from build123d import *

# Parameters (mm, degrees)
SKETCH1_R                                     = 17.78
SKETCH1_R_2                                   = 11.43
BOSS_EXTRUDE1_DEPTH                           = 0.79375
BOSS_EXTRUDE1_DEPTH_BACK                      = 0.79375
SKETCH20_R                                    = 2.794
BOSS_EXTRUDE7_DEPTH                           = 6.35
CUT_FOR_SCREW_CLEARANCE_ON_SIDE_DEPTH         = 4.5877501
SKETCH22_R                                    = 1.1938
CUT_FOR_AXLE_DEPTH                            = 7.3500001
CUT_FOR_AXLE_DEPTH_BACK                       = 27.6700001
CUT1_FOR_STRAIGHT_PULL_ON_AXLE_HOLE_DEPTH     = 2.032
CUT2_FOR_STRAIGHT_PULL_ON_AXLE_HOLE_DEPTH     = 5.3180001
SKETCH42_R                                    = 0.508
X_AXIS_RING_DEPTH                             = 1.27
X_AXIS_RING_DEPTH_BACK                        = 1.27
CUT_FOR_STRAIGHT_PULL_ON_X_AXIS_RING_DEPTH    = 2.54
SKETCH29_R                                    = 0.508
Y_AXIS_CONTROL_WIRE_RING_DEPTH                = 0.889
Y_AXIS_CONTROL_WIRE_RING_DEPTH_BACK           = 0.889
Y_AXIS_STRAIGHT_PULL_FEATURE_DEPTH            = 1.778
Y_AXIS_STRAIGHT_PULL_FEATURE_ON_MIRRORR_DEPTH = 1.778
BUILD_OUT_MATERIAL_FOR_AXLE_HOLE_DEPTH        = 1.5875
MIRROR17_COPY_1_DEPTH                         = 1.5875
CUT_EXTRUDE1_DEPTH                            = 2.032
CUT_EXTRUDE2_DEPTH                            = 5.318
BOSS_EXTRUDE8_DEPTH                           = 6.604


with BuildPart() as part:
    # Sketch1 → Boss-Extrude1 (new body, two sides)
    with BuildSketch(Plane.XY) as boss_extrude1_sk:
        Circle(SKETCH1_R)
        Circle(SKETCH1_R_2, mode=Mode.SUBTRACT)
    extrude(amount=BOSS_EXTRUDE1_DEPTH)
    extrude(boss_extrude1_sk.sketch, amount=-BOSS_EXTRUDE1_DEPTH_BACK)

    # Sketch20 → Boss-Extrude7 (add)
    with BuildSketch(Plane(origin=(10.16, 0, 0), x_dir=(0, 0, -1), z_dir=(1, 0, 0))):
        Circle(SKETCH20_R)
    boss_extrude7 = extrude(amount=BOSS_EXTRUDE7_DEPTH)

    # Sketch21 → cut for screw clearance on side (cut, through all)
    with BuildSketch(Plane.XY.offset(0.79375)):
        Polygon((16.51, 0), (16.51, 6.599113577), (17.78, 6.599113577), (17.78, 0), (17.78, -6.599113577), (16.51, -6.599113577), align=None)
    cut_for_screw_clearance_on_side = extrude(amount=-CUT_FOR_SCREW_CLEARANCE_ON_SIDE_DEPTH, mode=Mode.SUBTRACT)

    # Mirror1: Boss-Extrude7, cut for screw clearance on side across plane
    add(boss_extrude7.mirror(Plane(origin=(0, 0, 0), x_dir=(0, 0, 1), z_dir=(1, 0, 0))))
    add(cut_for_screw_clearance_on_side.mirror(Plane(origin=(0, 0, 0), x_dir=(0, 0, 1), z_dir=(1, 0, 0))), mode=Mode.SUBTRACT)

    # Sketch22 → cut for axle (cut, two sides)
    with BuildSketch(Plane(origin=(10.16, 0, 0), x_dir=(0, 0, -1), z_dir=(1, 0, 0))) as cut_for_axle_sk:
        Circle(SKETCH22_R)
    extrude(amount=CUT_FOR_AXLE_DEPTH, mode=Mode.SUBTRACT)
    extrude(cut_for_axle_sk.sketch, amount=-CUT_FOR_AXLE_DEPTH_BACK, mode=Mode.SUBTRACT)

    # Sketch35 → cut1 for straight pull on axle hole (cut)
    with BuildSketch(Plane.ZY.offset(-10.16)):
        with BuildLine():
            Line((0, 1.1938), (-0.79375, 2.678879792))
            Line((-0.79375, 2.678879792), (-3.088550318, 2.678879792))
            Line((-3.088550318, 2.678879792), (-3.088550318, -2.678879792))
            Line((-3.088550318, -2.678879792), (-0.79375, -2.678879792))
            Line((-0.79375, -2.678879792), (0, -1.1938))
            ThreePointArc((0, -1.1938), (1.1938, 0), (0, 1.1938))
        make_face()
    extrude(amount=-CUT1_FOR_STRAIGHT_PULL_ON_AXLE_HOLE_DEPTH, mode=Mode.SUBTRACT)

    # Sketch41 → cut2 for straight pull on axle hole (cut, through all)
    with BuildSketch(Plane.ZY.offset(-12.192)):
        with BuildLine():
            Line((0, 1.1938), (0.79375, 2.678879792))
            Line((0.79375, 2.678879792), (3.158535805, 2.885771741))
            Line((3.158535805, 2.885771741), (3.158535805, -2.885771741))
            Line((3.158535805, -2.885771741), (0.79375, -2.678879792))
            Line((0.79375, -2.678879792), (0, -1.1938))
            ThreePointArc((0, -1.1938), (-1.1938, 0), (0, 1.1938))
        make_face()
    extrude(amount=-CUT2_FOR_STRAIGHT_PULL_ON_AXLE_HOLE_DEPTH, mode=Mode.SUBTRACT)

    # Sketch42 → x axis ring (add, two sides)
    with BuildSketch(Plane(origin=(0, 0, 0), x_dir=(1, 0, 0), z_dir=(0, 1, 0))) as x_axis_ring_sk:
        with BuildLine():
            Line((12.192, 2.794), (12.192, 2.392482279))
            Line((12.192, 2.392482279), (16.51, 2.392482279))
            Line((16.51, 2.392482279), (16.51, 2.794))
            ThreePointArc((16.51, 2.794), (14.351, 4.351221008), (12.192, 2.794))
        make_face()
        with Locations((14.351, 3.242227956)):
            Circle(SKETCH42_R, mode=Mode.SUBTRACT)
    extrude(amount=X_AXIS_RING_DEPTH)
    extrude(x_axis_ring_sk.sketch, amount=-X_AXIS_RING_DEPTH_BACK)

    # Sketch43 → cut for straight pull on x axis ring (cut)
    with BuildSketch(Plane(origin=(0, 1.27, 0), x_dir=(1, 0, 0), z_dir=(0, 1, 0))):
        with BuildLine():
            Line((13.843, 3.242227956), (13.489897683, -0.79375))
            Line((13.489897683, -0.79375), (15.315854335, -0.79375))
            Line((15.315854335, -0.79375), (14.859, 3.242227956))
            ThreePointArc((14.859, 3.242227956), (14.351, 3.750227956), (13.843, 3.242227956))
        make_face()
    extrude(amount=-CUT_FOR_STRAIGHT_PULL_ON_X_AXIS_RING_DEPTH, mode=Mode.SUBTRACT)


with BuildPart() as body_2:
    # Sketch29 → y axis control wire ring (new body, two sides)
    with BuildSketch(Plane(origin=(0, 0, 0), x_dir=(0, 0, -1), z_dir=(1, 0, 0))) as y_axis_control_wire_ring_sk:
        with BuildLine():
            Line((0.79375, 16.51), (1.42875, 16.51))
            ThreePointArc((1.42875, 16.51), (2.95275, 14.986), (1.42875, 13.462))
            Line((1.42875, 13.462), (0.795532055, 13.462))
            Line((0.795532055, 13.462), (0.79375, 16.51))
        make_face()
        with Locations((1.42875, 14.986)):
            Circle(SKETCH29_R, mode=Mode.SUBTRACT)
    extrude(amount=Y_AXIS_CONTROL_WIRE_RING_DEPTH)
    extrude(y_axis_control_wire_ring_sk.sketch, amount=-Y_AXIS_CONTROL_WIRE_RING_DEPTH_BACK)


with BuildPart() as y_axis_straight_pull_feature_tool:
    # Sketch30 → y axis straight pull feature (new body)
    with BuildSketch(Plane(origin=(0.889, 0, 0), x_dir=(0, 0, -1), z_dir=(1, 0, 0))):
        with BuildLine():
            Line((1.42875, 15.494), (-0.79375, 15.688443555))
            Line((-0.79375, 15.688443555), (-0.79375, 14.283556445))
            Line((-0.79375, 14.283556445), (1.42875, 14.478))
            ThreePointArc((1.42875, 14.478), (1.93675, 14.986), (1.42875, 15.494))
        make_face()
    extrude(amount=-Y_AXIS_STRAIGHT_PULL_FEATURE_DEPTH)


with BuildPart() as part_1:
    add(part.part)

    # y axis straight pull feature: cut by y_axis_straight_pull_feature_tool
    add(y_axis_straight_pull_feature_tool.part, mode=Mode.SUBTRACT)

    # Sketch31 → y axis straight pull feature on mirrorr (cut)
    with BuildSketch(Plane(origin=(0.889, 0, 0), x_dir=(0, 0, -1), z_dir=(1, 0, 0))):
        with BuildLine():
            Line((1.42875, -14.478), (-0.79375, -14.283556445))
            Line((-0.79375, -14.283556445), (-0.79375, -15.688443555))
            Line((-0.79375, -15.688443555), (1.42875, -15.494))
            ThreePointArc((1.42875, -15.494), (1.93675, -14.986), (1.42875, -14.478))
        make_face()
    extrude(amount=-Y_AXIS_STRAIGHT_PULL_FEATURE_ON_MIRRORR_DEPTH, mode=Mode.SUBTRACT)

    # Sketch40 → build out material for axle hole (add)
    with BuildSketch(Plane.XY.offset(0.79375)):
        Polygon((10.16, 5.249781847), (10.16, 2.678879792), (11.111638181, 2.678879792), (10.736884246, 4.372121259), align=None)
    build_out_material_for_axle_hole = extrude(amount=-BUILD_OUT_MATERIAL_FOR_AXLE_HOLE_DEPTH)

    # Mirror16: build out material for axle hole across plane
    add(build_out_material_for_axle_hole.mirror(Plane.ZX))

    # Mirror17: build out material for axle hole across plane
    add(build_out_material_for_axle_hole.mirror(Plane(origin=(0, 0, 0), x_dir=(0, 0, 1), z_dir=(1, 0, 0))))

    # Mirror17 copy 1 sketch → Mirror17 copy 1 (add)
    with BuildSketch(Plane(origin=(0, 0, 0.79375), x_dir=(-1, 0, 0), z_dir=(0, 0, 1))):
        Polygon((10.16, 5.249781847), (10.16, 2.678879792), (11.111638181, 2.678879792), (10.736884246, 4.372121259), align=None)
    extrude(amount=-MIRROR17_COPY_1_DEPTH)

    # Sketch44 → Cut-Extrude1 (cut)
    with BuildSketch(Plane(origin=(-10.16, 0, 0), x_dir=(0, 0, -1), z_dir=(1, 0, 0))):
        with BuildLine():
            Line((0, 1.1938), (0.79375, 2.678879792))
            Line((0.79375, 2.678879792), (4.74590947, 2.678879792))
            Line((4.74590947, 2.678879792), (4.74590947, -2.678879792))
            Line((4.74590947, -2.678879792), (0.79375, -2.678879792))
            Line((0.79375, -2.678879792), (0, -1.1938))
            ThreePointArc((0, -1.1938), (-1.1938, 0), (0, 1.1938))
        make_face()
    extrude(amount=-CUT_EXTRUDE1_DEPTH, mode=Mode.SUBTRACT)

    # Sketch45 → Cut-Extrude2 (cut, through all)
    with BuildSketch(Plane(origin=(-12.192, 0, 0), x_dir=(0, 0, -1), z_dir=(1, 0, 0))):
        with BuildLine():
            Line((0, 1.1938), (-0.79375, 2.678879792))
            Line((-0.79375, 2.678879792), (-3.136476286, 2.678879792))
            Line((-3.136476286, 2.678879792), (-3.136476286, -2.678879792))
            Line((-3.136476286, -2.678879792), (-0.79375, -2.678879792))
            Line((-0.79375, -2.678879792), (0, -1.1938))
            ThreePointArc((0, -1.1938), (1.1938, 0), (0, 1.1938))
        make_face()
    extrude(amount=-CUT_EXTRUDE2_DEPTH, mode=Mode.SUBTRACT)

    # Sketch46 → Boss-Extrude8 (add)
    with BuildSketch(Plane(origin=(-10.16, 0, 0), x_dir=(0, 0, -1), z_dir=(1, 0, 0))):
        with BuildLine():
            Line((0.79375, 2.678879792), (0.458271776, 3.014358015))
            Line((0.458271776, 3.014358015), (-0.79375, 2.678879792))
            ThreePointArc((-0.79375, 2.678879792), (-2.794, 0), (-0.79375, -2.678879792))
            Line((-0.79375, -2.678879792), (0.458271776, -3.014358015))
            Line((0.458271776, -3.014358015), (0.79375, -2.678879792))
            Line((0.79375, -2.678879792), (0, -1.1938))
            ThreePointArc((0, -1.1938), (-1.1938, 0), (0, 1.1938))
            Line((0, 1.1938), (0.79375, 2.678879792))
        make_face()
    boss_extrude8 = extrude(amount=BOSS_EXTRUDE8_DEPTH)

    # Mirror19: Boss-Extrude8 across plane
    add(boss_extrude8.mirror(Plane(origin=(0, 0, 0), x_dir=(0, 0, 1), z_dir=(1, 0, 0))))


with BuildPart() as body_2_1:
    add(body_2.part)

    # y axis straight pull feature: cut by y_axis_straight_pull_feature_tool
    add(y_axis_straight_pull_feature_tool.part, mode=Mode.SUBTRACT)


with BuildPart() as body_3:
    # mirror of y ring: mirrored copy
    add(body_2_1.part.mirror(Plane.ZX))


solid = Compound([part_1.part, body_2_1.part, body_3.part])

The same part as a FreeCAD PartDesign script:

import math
import FreeCAD as App
import Part
import Sketcher
from FreeCAD import Vector
Q = App.Units.Quantity


def add_polygon(sketch, points):
    """Adds a closed chain of lines whose ends are joined by coincident constraints."""
    first, n = sketch.GeometryCount, len(points)
    for a, b in zip(points, points[1:] + points[:1]):
        sketch.addGeometry(Part.LineSegment(App.Vector(*a, 0), App.Vector(*b, 0)), False)
    for i in range(n):
        sketch.addConstraint(Sketcher.Constraint("Coincident", first + i, 2, first + (i + 1) % n, 1))

doc = App.newDocument("Part")
body = doc.addObject("PartDesign::Body", "Body")

# Sketch on XY plane
sketch1 = body.newObject("Sketcher::SketchObject", "Sketch")
sketch1.AttachmentSupport = (doc.getObject("XY_Plane"), [""])
sketch1.MapMode = "FlatFace"
sketch1.addGeometry([
    Part.Circle(Vector(0, 0, 0), Vector(0, 0, 1), 18),
    Part.Circle(Vector(0, 0, 0), Vector(0, 0, 1), 11),
], False)
sketch1.addConstraint([
    Sketcher.Constraint("Coincident", 0, 3, -1, 1),
    Sketcher.Constraint("Coincident", 1, 3, -1, 1),
    Sketcher.Constraint("Diameter", 0, Q("1.4 in")),
    Sketcher.Constraint("Diameter", 1, Q("0.9 in")),
])
pad1 = body.newObject("PartDesign::Pad", "Pad")
pad1.Profile = sketch1
pad1.Type = "TwoLengths"
pad1.Length = Q("0.03125 in")
pad1.Length2 = Q("0.03125 in")

# Sketch on YZ plane
sketch2 = body.newObject("Sketcher::SketchObject", "Sketch001")
sketch2.AttachmentSupport = (doc.getObject("YZ_Plane"), [""])
sketch2.MapMode = "FlatFace"
sketch2.AttachmentOffset = App.Placement(Vector(0, 0, 0.4 * 25.4), App.Rotation())
sketch2.addGeometry(Part.Circle(Vector(0, 0, 0), Vector(0, 0, 1), 2.8), False)
sketch2.addConstraint([
    Sketcher.Constraint("Coincident", 0, 3, -1, 1),
    Sketcher.Constraint("Diameter", 0, Q("0.22 in")),
])
pad2 = body.newObject("PartDesign::Pad", "Pad001")
pad2.Profile = sketch2
pad2.Length = Q("0.25 in")

# Sketch on XY plane
sketch3 = body.newObject("Sketcher::SketchObject", "Sketch002")
sketch3.AttachmentSupport = (doc.getObject("XY_Plane"), [""])
sketch3.MapMode = "FlatFace"
sketch3.AttachmentOffset = App.Placement(Vector(0, 0, 0.03125 * 25.4), App.Rotation())
add_polygon(sketch3, [(16.5, 6.6), (16.5, -6.6), (17.8, -6.6), (17.8, 6.6)])  # lines 0-3
sketch3.addConstraint([
    Sketcher.Constraint("Vertical", 0),
    Sketcher.Constraint("Horizontal", 1),
    Sketcher.Constraint("Vertical", 2),
    Sketcher.Constraint("Horizontal", 3),
    Sketcher.Constraint("DistanceX", 1, 1, 1, 2, Q("0.05 in")),
    Sketcher.Constraint("DistanceX", -1, 1, 1, 2, Q("0.7 in")),
    Sketcher.Constraint("DistanceY", 0, 2, 0, 1, Q("13.198227 mm")),
    Sketcher.Constraint("DistanceY", 0, 2, -1, 1, Q("6.599114 mm")),
])
pocket1 = body.newObject("PartDesign::Pocket", "Pocket")
pocket1.Profile = sketch3
pocket1.Type = "ThroughAll"
doc.recompute()

mirrored = body.newObject("PartDesign::Mirrored", "Mirrored")
mirrored.Originals = [pad2, pocket1]
mirrored.MirrorPlane = (doc.getObject("YZ_Plane"), [""])
body.Tip = mirrored

# Sketch on YZ plane
sketch4 = body.newObject("Sketcher::SketchObject", "Sketch003")
sketch4.AttachmentSupport = (doc.getObject("YZ_Plane"), [""])
sketch4.MapMode = "FlatFace"
sketch4.AttachmentOffset = App.Placement(Vector(0, 0, 0.4 * 25.4), App.Rotation())
sketch4.addGeometry(Part.Circle(Vector(0, 0, 0), Vector(0, 0, 1), 1.2), False)
sketch4.addConstraint([
    Sketcher.Constraint("Coincident", 0, 3, -1, 1),
    Sketcher.Constraint("Diameter", 0, Q("0.094 in")),
])
pocket2 = body.newObject("PartDesign::Pocket", "Pocket001")
pocket2.Profile = sketch4
pocket2.Type = "ThroughAll"
pocket2.Midplane = True

# Sketch on YZ plane
sketch5 = body.newObject("Sketcher::SketchObject", "Sketch004")
sketch5.AttachmentSupport = (doc.getObject("YZ_Plane"), [""])
sketch5.MapMode = "FlatFace"
sketch5.AttachmentOffset = App.Placement(Vector(0, 0, 0.4 * 25.4), App.Rotation())
sketch5.addGeometry([
    Part.LineSegment(Vector(1.2, 0, 0), Vector(2.7, -0.8, 0)),  # 0
    Part.LineSegment(Vector(2.7, -0.8, 0), Vector(2.7, -3.1, 0)),  # 1
    Part.LineSegment(Vector(2.7, -3.1, 0), Vector(-2.7, -3.1, 0)),  # 2
    Part.LineSegment(Vector(-2.7, -3.1, 0), Vector(-2.7, -0.8, 0)),  # 3
    Part.LineSegment(Vector(-2.7, -0.8, 0), Vector(-1.2, 0, 0)),  # 4
    Part.ArcOfCircle(Part.Circle(Vector(0, 0, 0), Vector(0, 0, 1), 1.2), math.radians(0), math.radians(180)),  # 5
], False)
sketch5.addConstraint([
    Sketcher.Constraint("Coincident", 0, 2, 1, 1),
    Sketcher.Constraint("Coincident", 1, 2, 2, 1),
    Sketcher.Constraint("Coincident", 2, 2, 3, 1),
    Sketcher.Constraint("Coincident", 3, 2, 4, 1),
    Sketcher.Constraint("Coincident", 4, 2, 5, 2),
    Sketcher.Constraint("Coincident", 5, 1, 0, 1),
    Sketcher.Constraint("Vertical", 1),
    Sketcher.Constraint("Horizontal", 2),
    Sketcher.Constraint("Vertical", 3),
    Sketcher.Constraint("Coincident", 5, 3, -1, 1),
    Sketcher.Constraint("Symmetric", 0, 2, 3, 2, -2),
    Sketcher.Constraint("PointOnObject", 4, 2, -1),
    Sketcher.Constraint("PointOnObject", 5, 1, -1),
    Sketcher.Constraint("Radius", 5, Q("0.047 in")),
    Sketcher.Constraint("DistanceY", 0, 2, -1, 1, Q("0.03125 in")),
    Sketcher.Constraint("DistanceY", 1, 2, 1, 1, Q("2.2948 mm")),
    Sketcher.Constraint("DistanceX", 2, 2, 2, 1, Q("5.35776 mm")),
])
pocket3 = body.newObject("PartDesign::Pocket", "Pocket002")
pocket3.Profile = sketch5
pocket3.Length = Q("0.08 in")
pocket3.Reversed = True

# Sketch on YZ plane
sketch6 = body.newObject("Sketcher::SketchObject", "Sketch005")
sketch6.AttachmentSupport = (doc.getObject("YZ_Plane"), [""])
sketch6.MapMode = "FlatFace"
sketch6.AttachmentOffset = App.Placement(Vector(0, 0, 0.48 * 25.4), App.Rotation())
sketch6.addGeometry([
    Part.LineSegment(Vector(2.7, 0.8, 0), Vector(1.2, 0, 0)),  # 0
    Part.ArcOfCircle(Part.Circle(Vector(0, 0, 0), Vector(0, 0, 1), 1.2), math.radians(180), math.radians(360)),  # 1
    Part.LineSegment(Vector(-1.2, 0, 0), Vector(-2.7, 0.8, 0)),  # 2
    Part.LineSegment(Vector(-2.7, 0.8, 0), Vector(-2.9, 3.2, 0)),  # 3
    Part.LineSegment(Vector(-2.9, 3.2, 0), Vector(2.9, 3.2, 0)),  # 4
    Part.LineSegment(Vector(2.9, 3.2, 0), Vector(2.7, 0.8, 0)),  # 5
], False)
sketch6.addConstraint([
    Sketcher.Constraint("Coincident", 0, 2, 1, 2),
    Sketcher.Constraint("Coincident", 1, 1, 2, 1),
    Sketcher.Constraint("Coincident", 2, 2, 3, 1),
    Sketcher.Constraint("Coincident", 3, 2, 4, 1),
    Sketcher.Constraint("Coincident", 4, 2, 5, 1),
    Sketcher.Constraint("Coincident", 5, 2, 0, 1),
    Sketcher.Constraint("Horizontal", 4),
    Sketcher.Constraint("Coincident", 1, 3, -1, 1),
    Sketcher.Constraint("Symmetric", 2, 2, 5, 2, -2),
    Sketcher.Constraint("PointOnObject", 0, 2, -1),
    Sketcher.Constraint("PointOnObject", 1, 1, -1),
    Sketcher.Constraint("Equal", 3, 5),
    Sketcher.Constraint("Angle", 3, Q("95 deg")),
    Sketcher.Constraint("Radius", 1, Q("0.047 in")),
    Sketcher.Constraint("DistanceY", -1, 1, 2, 2, Q("0.03125 in")),
    Sketcher.Constraint("Distance", 3, Q("2.373819 mm")),
    Sketcher.Constraint("DistanceX", 4, 1, 4, 2, Q("5.771543 mm")),
])
pocket4 = body.newObject("PartDesign::Pocket", "Pocket003")
pocket4.Profile = sketch6
pocket4.Type = "ThroughAll"
pocket4.Reversed = True

# Sketch on XZ plane
sketch7 = body.newObject("Sketcher::SketchObject", "Sketch006")
sketch7.AttachmentSupport = (doc.getObject("XZ_Plane"), [""])
sketch7.MapMode = "FlatFace"
sketch7.addGeometry([
    Part.LineSegment(Vector(12.19, -2.79, 0), Vector(12.19, -2.39, 0)),  # 0
    Part.LineSegment(Vector(12.19, -2.39, 0), Vector(16.51, -2.39, 0)),  # 1
    Part.LineSegment(Vector(16.51, -2.39, 0), Vector(16.51, -2.79, 0)),  # 2
    Part.ArcOfCircle(Part.Circle(Vector(14.35, -2.08, 0), Vector(0, 0, 1), 2.28), math.radians(-162), math.radians(-18)),  # 3
    Part.Circle(Vector(14.35, -3.24, 0), Vector(0, 0, 1), 0.51),  # 4
], False)
sketch7.addConstraint([
    Sketcher.Constraint("Coincident", 0, 2, 1, 1),
    Sketcher.Constraint("Coincident", 1, 2, 2, 1),
    Sketcher.Constraint("Coincident", 2, 2, 3, 2),
    Sketcher.Constraint("Coincident", 3, 1, 0, 1),
    Sketcher.Constraint("Vertical", 0),
    Sketcher.Constraint("Horizontal", 1),
    Sketcher.Constraint("Vertical", 2),
    Sketcher.Constraint("Horizontal", 2, 2, 3, 1),
    Sketcher.Constraint("Vertical", 3, 3, 4, 3),
    Sketcher.Constraint("Diameter", 4, Q("0.04 in")),
    Sketcher.Constraint("DistanceX", 1, 1, 1, 2, Q("0.17 in")),
    Sketcher.Constraint("DistanceX", -1, 1, 0, 2, Q("0.48 in")),
    Sketcher.Constraint("DistanceY", 2, 2, -1, 1, Q("0.11 in")),
    Sketcher.Constraint("Radius", 3, Q("2.275277 mm")),
    Sketcher.Constraint("DistanceY", 0, 1, 0, 2, Q("0.401518 mm")),
    Sketcher.Constraint("DistanceY", 4, 3, -1, 1, Q("3.242228 mm")),
])
pad3 = body.newObject("PartDesign::Pad", "Pad002")
pad3.Profile = sketch7
pad3.Type = "TwoLengths"
pad3.Length = Q("0.05 in")
pad3.Length2 = Q("0.05 in")
pad3.Reversed = True

# Sketch on XZ plane
sketch8 = body.newObject("Sketcher::SketchObject", "Sketch007")
sketch8.AttachmentSupport = (doc.getObject("XZ_Plane"), [""])
sketch8.MapMode = "FlatFace"
sketch8.AttachmentOffset = App.Placement(Vector(0, 0, -0.05 * 25.4), App.Rotation())
sketch8.addGeometry([
    Part.LineSegment(Vector(13.8, -3.2, 0), Vector(13.5, 0.8, 0)),
    Part.LineSegment(Vector(13.5, 0.8, 0), Vector(15.3, 0.8, 0)),
    Part.LineSegment(Vector(15.3, 0.8, 0), Vector(14.9, -3.2, 0)),
    Part.ArcOfCircle(Part.Circle(Vector(14.4, -3.2, 0), Vector(0, 0, 1), 0.5), math.radians(180), math.radians(360)),
], False)
sketch8.addConstraint([
    Sketcher.Constraint("Coincident", 0, 2, 1, 1),
    Sketcher.Constraint("Coincident", 1, 2, 2, 1),
    Sketcher.Constraint("Coincident", 2, 2, 3, 2),
    Sketcher.Constraint("Coincident", 3, 1, 0, 1),
    Sketcher.Constraint("Horizontal", 1),
    Sketcher.Constraint("Horizontal", 3, 3, 2, 2),
    Sketcher.Constraint("Horizontal", 2, 2, 3, 1),
    Sketcher.Constraint("Radius", 3, Q("0.02 in")),
    Sketcher.Constraint("Angle", 0, Q("95 deg")),
    Sketcher.Constraint("DistanceX", -1, 1, 3, 3, Q("0.565 in")),
    Sketcher.Constraint("DistanceY", -1, 1, 0, 2, Q("0.03125 in")),
    Sketcher.Constraint("DistanceX", 1, 1, 1, 2, Q("1.825957 mm")),
    Sketcher.Constraint("Distance", 0, Q("4.051395 mm")),
])
pocket5 = body.newObject("PartDesign::Pocket", "Pocket004")
pocket5.Profile = sketch8
pocket5.Length = Q("0.1 in")
pocket5.Reversed = True
body2 = doc.addObject("PartDesign::Body", "Body001")

# Sketch on YZ plane
sketch9 = body2.newObject("Sketcher::SketchObject", "Sketch008")
sketch9.AttachmentSupport = (doc.getObject("YZ_Plane001"), [""])
sketch9.MapMode = "FlatFace"
sketch9.addGeometry([
    Part.LineSegment(Vector(16.5, -1.4, 0), Vector(16.5, -0.8, 0)),  # 0
    Part.LineSegment(Vector(16.5, -0.8, 0), Vector(13.5, -0.8, 0)),  # 1
    Part.LineSegment(Vector(13.5, -0.8, 0), Vector(13.5, -1.4, 0)),  # 2
    Part.ArcOfCircle(Part.Circle(Vector(15, -1.4, 0), Vector(0, 0, 1), 1.5), math.radians(180), math.radians(360)),  # 3
    Part.Circle(Vector(15, -1.4, 0), Vector(0, 0, 1), 0.5),  # 4
], False)
sketch9.addConstraint([
    Sketcher.Constraint("Coincident", 0, 2, 1, 1),
    Sketcher.Constraint("Coincident", 1, 2, 2, 1),
    Sketcher.Constraint("Tangent", 2, 2, 3, 1),
    Sketcher.Constraint("Tangent", 3, 2, 0, 1),
    Sketcher.Constraint("Vertical", 0),
    Sketcher.Constraint("Vertical", 2),
    Sketcher.Constraint("Coincident", 4, 3, 3, 3),
    Sketcher.Constraint("Diameter", 4, Q("0.04 in")),
    Sketcher.Constraint("Radius", 3, Q("0.06 in")),
    Sketcher.Constraint("DistanceY", 0, 1, 0, 2, Q("0.025 in")),
    Sketcher.Constraint("DistanceX", -1, 1, 3, 3, Q("0.59 in")),
    Sketcher.Constraint("DistanceY", 0, 2, -1, 1, Q("0.03125 in")),
    Sketcher.Constraint("DistanceY", 2, 2, 2, 1, Q("0.633218 mm")),
])
pad4 = body2.newObject("PartDesign::Pad", "Pad003")
pad4.Profile = sketch9
pad4.Type = "TwoLengths"
pad4.Length = Q("0.035 in")
pad4.Length2 = Q("0.035 in")
body3 = doc.addObject("PartDesign::Body", "Body002")

# Sketch on YZ plane
sketch10 = body3.newObject("Sketcher::SketchObject", "Sketch009")
sketch10.AttachmentSupport = (doc.getObject("YZ_Plane002"), [""])
sketch10.MapMode = "FlatFace"
sketch10.AttachmentOffset = App.Placement(Vector(0, 0, 0.035 * 25.4), App.Rotation())
sketch10.addGeometry([
    Part.LineSegment(Vector(15.5, -1.4, 0), Vector(15.7, 0.8, 0)),
    Part.LineSegment(Vector(15.7, 0.8, 0), Vector(14.3, 0.8, 0)),
    Part.LineSegment(Vector(14.3, 0.8, 0), Vector(14.5, -1.4, 0)),
    Part.ArcOfCircle(Part.Circle(Vector(15, -1.4, 0), Vector(0, 0, 1), 0.5), math.radians(180), math.radians(360)),
], False)
sketch10.addConstraint([
    Sketcher.Constraint("Coincident", 0, 2, 1, 1),
    Sketcher.Constraint("Coincident", 1, 2, 2, 1),
    Sketcher.Constraint("Coincident", 2, 2, 3, 1),
    Sketcher.Constraint("Coincident", 3, 2, 0, 1),
    Sketcher.Constraint("Horizontal", 1),
    Sketcher.Constraint("Horizontal", 3, 3, 2, 2),
    Sketcher.Constraint("Horizontal", 2, 2, 3, 2),
    Sketcher.Constraint("Equal", 0, 2),
    Sketcher.Constraint("Radius", 3, Q("0.02 in")),
    Sketcher.Constraint("Angle", 0, Q("85 deg")),
    Sketcher.Constraint("DistanceX", -1, 1, 3, 3, Q("0.59 in")),
    Sketcher.Constraint("DistanceY", -1, 1, 0, 2, Q("0.03125 in")),
    Sketcher.Constraint("DistanceY", 3, 3, 0, 2, Q("0.0875 in")),
])
pad5 = body3.newObject("PartDesign::Pad", "Pad004")
pad5.Profile = sketch10
pad5.Length = Q("0.07 in")
pad5.Reversed = True
doc.recompute()

body4 = doc.addObject("PartDesign::Body", "Body003")
body4.BaseFeature = body3
boolean = body.newObject("PartDesign::Boolean", "Boolean")
boolean.Type = "Cut"
boolean.addObjects([body4])
doc.recompute()

# Sketch on YZ plane
sketch11 = body.newObject("Sketcher::SketchObject", "Sketch010")
sketch11.AttachmentSupport = (doc.getObject("YZ_Plane"), [""])
sketch11.MapMode = "FlatFace"
sketch11.AttachmentOffset = App.Placement(Vector(0, 0, 0.035 * 25.4), App.Rotation())
sketch11.addGeometry([
    Part.LineSegment(Vector(-14.5, -1.4, 0), Vector(-14.3, 0.8, 0)),
    Part.LineSegment(Vector(-14.3, 0.8, 0), Vector(-15.7, 0.8, 0)),
    Part.LineSegment(Vector(-15.7, 0.8, 0), Vector(-15.5, -1.4, 0)),
    Part.ArcOfCircle(Part.Circle(Vector(-15, -1.4, 0), Vector(0, 0, 1), 0.5), math.radians(180), math.radians(360)),
], False)
sketch11.addConstraint([
    Sketcher.Constraint("Coincident", 0, 2, 1, 1),
    Sketcher.Constraint("Coincident", 1, 2, 2, 1),
    Sketcher.Constraint("Coincident", 2, 2, 3, 1),
    Sketcher.Constraint("Coincident", 3, 2, 0, 1),
    Sketcher.Constraint("Horizontal", 1),
    Sketcher.Constraint("Horizontal", 3, 3, 2, 2),
    Sketcher.Constraint("Horizontal", 2, 2, 3, 2),
    Sketcher.Constraint("Equal", 0, 2),
    Sketcher.Constraint("Radius", 3, Q("0.02 in")),
    Sketcher.Constraint("Angle", 0, Q("85 deg")),
    Sketcher.Constraint("DistanceX", 3, 3, -1, 1, Q("0.59 in")),
    Sketcher.Constraint("DistanceY", -1, 1, 0, 2, Q("0.03125 in")),
    Sketcher.Constraint("DistanceY", 3, 3, 0, 2, Q("0.0875 in")),
])
pocket6 = body.newObject("PartDesign::Pocket", "Pocket005")
pocket6.Profile = sketch11
pocket6.Length = Q("0.07 in")

# Sketch on XY plane
sketch12 = body.newObject("Sketcher::SketchObject", "Sketch011")
sketch12.AttachmentSupport = (doc.getObject("XY_Plane"), [""])
sketch12.MapMode = "FlatFace"
sketch12.AttachmentOffset = App.Placement(Vector(0, 0, 0.03125 * 25.4), App.Rotation())
add_polygon(sketch12, [(10.2, 5.2), (10.2, 2.7), (11.1, 2.7), (10.7, 4.4)])  # lines 0-3
sketch12.addConstraint([
    Sketcher.Constraint("Vertical", 0),
    Sketcher.Constraint("Horizontal", 1),
    Sketcher.Constraint("DistanceX", -1, 1, 0, 2, Q("0.4 in")),
    Sketcher.Constraint("DistanceX", 1, 1, 1, 2, Q("0.951638 mm")),
    Sketcher.Constraint("DistanceY", 0, 2, 0, 1, Q("2.570902 mm")),
    Sketcher.Constraint("DistanceY", -1, 1, 0, 2, Q("2.67888 mm")),
    Sketcher.Constraint("DistanceY", -1, 1, 2, 2, Q("4.372121 mm")),
    Sketcher.Constraint("Distance", 2, Q("1.734217 mm")),
])
pad6 = body.newObject("PartDesign::Pad", "Pad005")
pad6.Profile = sketch12
pad6.Length = Q("0.0625 in")
pad6.Reversed = True
doc.recompute()

mirrored2 = body.newObject("PartDesign::Mirrored", "Mirrored001")
mirrored2.Originals = [pad6]
mirrored2.MirrorPlane = (doc.getObject("XZ_Plane"), [""])
body.Tip = mirrored2
doc.recompute()

mirrored3 = body.newObject("PartDesign::Mirrored", "Mirrored002")
mirrored3.Originals = [pad6]
mirrored3.MirrorPlane = (doc.getObject("YZ_Plane"), [""])
body.Tip = mirrored3

# Sketch on XY plane
sketch13 = body.newObject("Sketcher::SketchObject", "Sketch012")
sketch13.AttachmentSupport = (doc.getObject("XY_Plane"), [""])
sketch13.MapMode = "FlatFace"
sketch13.AttachmentOffset = App.Placement(Vector(0, 0, 0.03125 * 25.4), App.Rotation())
add_polygon(sketch13, [(-10.2, -5.2), (-10.2, -2.7), (-11.1, -2.7), (-10.7, -4.4)])  # lines 0-3
sketch13.addConstraint([
    Sketcher.Constraint("Vertical", 0),
    Sketcher.Constraint("Horizontal", 1),
    Sketcher.Constraint("DistanceX", 0, 2, -1, 1, Q("0.4 in")),
    Sketcher.Constraint("DistanceX", 1, 2, 1, 1, Q("0.951638 mm")),
    Sketcher.Constraint("DistanceY", 0, 1, 0, 2, Q("2.570902 mm")),
    Sketcher.Constraint("DistanceY", 0, 2, -1, 1, Q("2.67888 mm")),
    Sketcher.Constraint("DistanceY", 2, 2, -1, 1, Q("4.372121 mm")),
    Sketcher.Constraint("Distance", 2, Q("1.734217 mm")),
])
pad7 = body.newObject("PartDesign::Pad", "Pad006")
pad7.Profile = sketch13
pad7.Length = Q("0.0625 in")
pad7.Reversed = True

# Sketch on YZ plane
sketch14 = body.newObject("Sketcher::SketchObject", "Sketch013")
sketch14.AttachmentSupport = (doc.getObject("YZ_Plane"), [""])
sketch14.MapMode = "FlatFace"
sketch14.AttachmentOffset = App.Placement(Vector(0, 0, -0.4 * 25.4), App.Rotation())
sketch14.addGeometry([
    Part.LineSegment(Vector(2.7, -0.8, 0), Vector(1.2, 0, 0)),  # 0
    Part.ArcOfCircle(Part.Circle(Vector(0, 0, 0), Vector(0, 0, 1), 1.2), math.radians(0), math.radians(180)),  # 1
    Part.LineSegment(Vector(-1.2, 0, 0), Vector(-2.7, -0.8, 0)),  # 2
    Part.LineSegment(Vector(-2.7, -0.8, 0), Vector(-2.7, -4.7, 0)),  # 3
    Part.LineSegment(Vector(-2.7, -4.7, 0), Vector(2.7, -4.7, 0)),  # 4
    Part.LineSegment(Vector(2.7, -4.7, 0), Vector(2.7, -0.8, 0)),  # 5
], False)
sketch14.addConstraint([
    Sketcher.Constraint("Coincident", 0, 2, 1, 1),
    Sketcher.Constraint("Coincident", 1, 2, 2, 1),
    Sketcher.Constraint("Coincident", 2, 2, 3, 1),
    Sketcher.Constraint("Coincident", 3, 2, 4, 1),
    Sketcher.Constraint("Coincident", 4, 2, 5, 1),
    Sketcher.Constraint("Coincident", 5, 2, 0, 1),
    Sketcher.Constraint("Vertical", 3),
    Sketcher.Constraint("Horizontal", 4),
    Sketcher.Constraint("Vertical", 5),
    Sketcher.Constraint("Coincident", 1, 3, -1, 1),
    Sketcher.Constraint("Symmetric", 2, 2, 5, 2, -2),
    Sketcher.Constraint("PointOnObject", 0, 2, -1),
    Sketcher.Constraint("PointOnObject", 1, 2, -1),
    Sketcher.Constraint("Radius", 1, Q("0.047 in")),
    Sketcher.Constraint("DistanceY", 2, 2, -1, 1, Q("0.03125 in")),
    Sketcher.Constraint("DistanceX", 4, 1, 4, 2, Q("5.35776 mm")),
    Sketcher.Constraint("DistanceY", 3, 2, 3, 1, Q("3.952159 mm")),
])
pocket7 = body.newObject("PartDesign::Pocket", "Pocket006")
pocket7.Profile = sketch14
pocket7.Length = Q("0.08 in")

# Sketch on YZ plane
sketch15 = body.newObject("Sketcher::SketchObject", "Sketch014")
sketch15.AttachmentSupport = (doc.getObject("YZ_Plane"), [""])
sketch15.MapMode = "FlatFace"
sketch15.AttachmentOffset = App.Placement(Vector(0, 0, -0.48 * 25.4), App.Rotation())
sketch15.addGeometry([
    Part.LineSegment(Vector(1.2, 0, 0), Vector(2.7, 0.8, 0)),  # 0
    Part.LineSegment(Vector(2.7, 0.8, 0), Vector(2.7, 3.1, 0)),  # 1
    Part.LineSegment(Vector(2.7, 3.1, 0), Vector(-2.7, 3.1, 0)),  # 2
    Part.LineSegment(Vector(-2.7, 3.1, 0), Vector(-2.7, 0.8, 0)),  # 3
    Part.LineSegment(Vector(-2.7, 0.8, 0), Vector(-1.2, 0, 0)),  # 4
    Part.ArcOfCircle(Part.Circle(Vector(0, 0, 0), Vector(0, 0, 1), 1.2), math.radians(180), math.radians(360)),  # 5
], False)
sketch15.addConstraint([
    Sketcher.Constraint("Coincident", 0, 2, 1, 1),
    Sketcher.Constraint("Coincident", 1, 2, 2, 1),
    Sketcher.Constraint("Coincident", 2, 2, 3, 1),
    Sketcher.Constraint("Coincident", 3, 2, 4, 1),
    Sketcher.Constraint("Coincident", 4, 2, 5, 1),
    Sketcher.Constraint("Coincident", 5, 2, 0, 1),
    Sketcher.Constraint("Vertical", 1),
    Sketcher.Constraint("Horizontal", 2),
    Sketcher.Constraint("Vertical", 3),
    Sketcher.Constraint("Coincident", 5, 3, -1, 1),
    Sketcher.Constraint("Symmetric", 0, 2, 3, 2, -2),
    Sketcher.Constraint("PointOnObject", 4, 2, -1),
    Sketcher.Constraint("PointOnObject", 5, 2, -1),
    Sketcher.Constraint("Radius", 5, Q("0.047 in")),
    Sketcher.Constraint("DistanceY", -1, 1, 0, 2, Q("0.03125 in")),
    Sketcher.Constraint("DistanceX", 2, 2, 2, 1, Q("5.35776 mm")),
    Sketcher.Constraint("DistanceY", 1, 1, 1, 2, Q("2.342726 mm")),
])
pocket8 = body.newObject("PartDesign::Pocket", "Pocket007")
pocket8.Profile = sketch15
pocket8.Type = "ThroughAll"

# Sketch on YZ plane
sketch16 = body.newObject("Sketcher::SketchObject", "Sketch015")
sketch16.AttachmentSupport = (doc.getObject("YZ_Plane"), [""])
sketch16.MapMode = "FlatFace"
sketch16.AttachmentOffset = App.Placement(Vector(0, 0, -0.4 * 25.4), App.Rotation())
sketch16.addGeometry([
    Part.LineSegment(Vector(2.68, -0.79, 0), Vector(3.01, -0.46, 0)),  # 0
    Part.LineSegment(Vector(3.01, -0.46, 0), Vector(2.68, 0.79, 0)),  # 1
    Part.ArcOfCircle(Part.Circle(Vector(0, 0, 0), Vector(0, 0, 1), 2.79), math.radians(17), math.radians(163)),  # 2
    Part.LineSegment(Vector(-2.68, 0.79, 0), Vector(-3.01, -0.46, 0)),  # 3
    Part.LineSegment(Vector(-3.01, -0.46, 0), Vector(-2.68, -0.79, 0)),  # 4
    Part.LineSegment(Vector(-2.68, -0.79, 0), Vector(-1.19, 0, 0)),  # 5
    Part.ArcOfCircle(Part.Circle(Vector(0, 0, 0), Vector(0, 0, 1), 1.19), math.radians(0), math.radians(180)),  # 6
    Part.LineSegment(Vector(1.19, 0, 0), Vector(2.68, -0.79, 0)),  # 7
], False)
sketch16.addConstraint([
    Sketcher.Constraint("Coincident", 0, 2, 1, 1),
    Sketcher.Constraint("Coincident", 1, 2, 2, 1),
    Sketcher.Constraint("Coincident", 2, 2, 3, 1),
    Sketcher.Constraint("Coincident", 3, 2, 4, 1),
    Sketcher.Constraint("Coincident", 4, 2, 5, 1),
    Sketcher.Constraint("Coincident", 5, 2, 6, 2),
    Sketcher.Constraint("Coincident", 6, 1, 7, 1),
    Sketcher.Constraint("Coincident", 7, 2, 0, 1),
    Sketcher.Constraint("Coincident", 2, 3, -1, 1),
    Sketcher.Constraint("Coincident", 6, 3, -1, 1),
    Sketcher.Constraint("Symmetric", 1, 2, 4, 2, -1, 1),
    Sketcher.Constraint("Symmetric", 2, 2, 7, 2, -1, 1),
    Sketcher.Constraint("Symmetric", 0, 2, 3, 2, -2),
    Sketcher.Constraint("PointOnObject", 5, 2, -1),
    Sketcher.Constraint("PointOnObject", 6, 1, -1),
    Sketcher.Constraint("Perpendicular", 0, 4),
    Sketcher.Constraint("Horizontal", 1, 2, 2, 2),
    Sketcher.Constraint("Radius", 2, Q("0.11 in")),
    Sketcher.Constraint("Angle", 1, Q("105 deg")),
    Sketcher.Constraint("Radius", 6, Q("0.047 in")),
    Sketcher.Constraint("DistanceY", -1, 1, 1, 2, Q("0.03125 in")),
])
pad8 = body.newObject("PartDesign::Pad", "Pad007")
pad8.Profile = sketch16
pad8.Length = Q("0.26 in")
doc.recompute()

mirrored4 = body.newObject("PartDesign::Mirrored", "Mirrored003")
mirrored4.Originals = [pad8]
mirrored4.MirrorPlane = (doc.getObject("YZ_Plane"), [""])
body.Tip = mirrored4
doc.recompute()

boolean2 = body2.newObject("PartDesign::Boolean", "Boolean001")
boolean2.Type = "Cut"
boolean2.addObjects([body3])
body5 = doc.addObject("PartDesign::Body", "Body004")
doc.recompute()

mirroring = doc.addObject("Part::Mirroring", "Mirroring")
mirroring.Source = body2
mirroring.Base = Vector(0, 0, 0)
mirroring.Normal = Vector(0, 1, 0)
body5.BaseFeature = mirroring
doc.recompute()
mirroring.Visibility = False

doc.recompute()
